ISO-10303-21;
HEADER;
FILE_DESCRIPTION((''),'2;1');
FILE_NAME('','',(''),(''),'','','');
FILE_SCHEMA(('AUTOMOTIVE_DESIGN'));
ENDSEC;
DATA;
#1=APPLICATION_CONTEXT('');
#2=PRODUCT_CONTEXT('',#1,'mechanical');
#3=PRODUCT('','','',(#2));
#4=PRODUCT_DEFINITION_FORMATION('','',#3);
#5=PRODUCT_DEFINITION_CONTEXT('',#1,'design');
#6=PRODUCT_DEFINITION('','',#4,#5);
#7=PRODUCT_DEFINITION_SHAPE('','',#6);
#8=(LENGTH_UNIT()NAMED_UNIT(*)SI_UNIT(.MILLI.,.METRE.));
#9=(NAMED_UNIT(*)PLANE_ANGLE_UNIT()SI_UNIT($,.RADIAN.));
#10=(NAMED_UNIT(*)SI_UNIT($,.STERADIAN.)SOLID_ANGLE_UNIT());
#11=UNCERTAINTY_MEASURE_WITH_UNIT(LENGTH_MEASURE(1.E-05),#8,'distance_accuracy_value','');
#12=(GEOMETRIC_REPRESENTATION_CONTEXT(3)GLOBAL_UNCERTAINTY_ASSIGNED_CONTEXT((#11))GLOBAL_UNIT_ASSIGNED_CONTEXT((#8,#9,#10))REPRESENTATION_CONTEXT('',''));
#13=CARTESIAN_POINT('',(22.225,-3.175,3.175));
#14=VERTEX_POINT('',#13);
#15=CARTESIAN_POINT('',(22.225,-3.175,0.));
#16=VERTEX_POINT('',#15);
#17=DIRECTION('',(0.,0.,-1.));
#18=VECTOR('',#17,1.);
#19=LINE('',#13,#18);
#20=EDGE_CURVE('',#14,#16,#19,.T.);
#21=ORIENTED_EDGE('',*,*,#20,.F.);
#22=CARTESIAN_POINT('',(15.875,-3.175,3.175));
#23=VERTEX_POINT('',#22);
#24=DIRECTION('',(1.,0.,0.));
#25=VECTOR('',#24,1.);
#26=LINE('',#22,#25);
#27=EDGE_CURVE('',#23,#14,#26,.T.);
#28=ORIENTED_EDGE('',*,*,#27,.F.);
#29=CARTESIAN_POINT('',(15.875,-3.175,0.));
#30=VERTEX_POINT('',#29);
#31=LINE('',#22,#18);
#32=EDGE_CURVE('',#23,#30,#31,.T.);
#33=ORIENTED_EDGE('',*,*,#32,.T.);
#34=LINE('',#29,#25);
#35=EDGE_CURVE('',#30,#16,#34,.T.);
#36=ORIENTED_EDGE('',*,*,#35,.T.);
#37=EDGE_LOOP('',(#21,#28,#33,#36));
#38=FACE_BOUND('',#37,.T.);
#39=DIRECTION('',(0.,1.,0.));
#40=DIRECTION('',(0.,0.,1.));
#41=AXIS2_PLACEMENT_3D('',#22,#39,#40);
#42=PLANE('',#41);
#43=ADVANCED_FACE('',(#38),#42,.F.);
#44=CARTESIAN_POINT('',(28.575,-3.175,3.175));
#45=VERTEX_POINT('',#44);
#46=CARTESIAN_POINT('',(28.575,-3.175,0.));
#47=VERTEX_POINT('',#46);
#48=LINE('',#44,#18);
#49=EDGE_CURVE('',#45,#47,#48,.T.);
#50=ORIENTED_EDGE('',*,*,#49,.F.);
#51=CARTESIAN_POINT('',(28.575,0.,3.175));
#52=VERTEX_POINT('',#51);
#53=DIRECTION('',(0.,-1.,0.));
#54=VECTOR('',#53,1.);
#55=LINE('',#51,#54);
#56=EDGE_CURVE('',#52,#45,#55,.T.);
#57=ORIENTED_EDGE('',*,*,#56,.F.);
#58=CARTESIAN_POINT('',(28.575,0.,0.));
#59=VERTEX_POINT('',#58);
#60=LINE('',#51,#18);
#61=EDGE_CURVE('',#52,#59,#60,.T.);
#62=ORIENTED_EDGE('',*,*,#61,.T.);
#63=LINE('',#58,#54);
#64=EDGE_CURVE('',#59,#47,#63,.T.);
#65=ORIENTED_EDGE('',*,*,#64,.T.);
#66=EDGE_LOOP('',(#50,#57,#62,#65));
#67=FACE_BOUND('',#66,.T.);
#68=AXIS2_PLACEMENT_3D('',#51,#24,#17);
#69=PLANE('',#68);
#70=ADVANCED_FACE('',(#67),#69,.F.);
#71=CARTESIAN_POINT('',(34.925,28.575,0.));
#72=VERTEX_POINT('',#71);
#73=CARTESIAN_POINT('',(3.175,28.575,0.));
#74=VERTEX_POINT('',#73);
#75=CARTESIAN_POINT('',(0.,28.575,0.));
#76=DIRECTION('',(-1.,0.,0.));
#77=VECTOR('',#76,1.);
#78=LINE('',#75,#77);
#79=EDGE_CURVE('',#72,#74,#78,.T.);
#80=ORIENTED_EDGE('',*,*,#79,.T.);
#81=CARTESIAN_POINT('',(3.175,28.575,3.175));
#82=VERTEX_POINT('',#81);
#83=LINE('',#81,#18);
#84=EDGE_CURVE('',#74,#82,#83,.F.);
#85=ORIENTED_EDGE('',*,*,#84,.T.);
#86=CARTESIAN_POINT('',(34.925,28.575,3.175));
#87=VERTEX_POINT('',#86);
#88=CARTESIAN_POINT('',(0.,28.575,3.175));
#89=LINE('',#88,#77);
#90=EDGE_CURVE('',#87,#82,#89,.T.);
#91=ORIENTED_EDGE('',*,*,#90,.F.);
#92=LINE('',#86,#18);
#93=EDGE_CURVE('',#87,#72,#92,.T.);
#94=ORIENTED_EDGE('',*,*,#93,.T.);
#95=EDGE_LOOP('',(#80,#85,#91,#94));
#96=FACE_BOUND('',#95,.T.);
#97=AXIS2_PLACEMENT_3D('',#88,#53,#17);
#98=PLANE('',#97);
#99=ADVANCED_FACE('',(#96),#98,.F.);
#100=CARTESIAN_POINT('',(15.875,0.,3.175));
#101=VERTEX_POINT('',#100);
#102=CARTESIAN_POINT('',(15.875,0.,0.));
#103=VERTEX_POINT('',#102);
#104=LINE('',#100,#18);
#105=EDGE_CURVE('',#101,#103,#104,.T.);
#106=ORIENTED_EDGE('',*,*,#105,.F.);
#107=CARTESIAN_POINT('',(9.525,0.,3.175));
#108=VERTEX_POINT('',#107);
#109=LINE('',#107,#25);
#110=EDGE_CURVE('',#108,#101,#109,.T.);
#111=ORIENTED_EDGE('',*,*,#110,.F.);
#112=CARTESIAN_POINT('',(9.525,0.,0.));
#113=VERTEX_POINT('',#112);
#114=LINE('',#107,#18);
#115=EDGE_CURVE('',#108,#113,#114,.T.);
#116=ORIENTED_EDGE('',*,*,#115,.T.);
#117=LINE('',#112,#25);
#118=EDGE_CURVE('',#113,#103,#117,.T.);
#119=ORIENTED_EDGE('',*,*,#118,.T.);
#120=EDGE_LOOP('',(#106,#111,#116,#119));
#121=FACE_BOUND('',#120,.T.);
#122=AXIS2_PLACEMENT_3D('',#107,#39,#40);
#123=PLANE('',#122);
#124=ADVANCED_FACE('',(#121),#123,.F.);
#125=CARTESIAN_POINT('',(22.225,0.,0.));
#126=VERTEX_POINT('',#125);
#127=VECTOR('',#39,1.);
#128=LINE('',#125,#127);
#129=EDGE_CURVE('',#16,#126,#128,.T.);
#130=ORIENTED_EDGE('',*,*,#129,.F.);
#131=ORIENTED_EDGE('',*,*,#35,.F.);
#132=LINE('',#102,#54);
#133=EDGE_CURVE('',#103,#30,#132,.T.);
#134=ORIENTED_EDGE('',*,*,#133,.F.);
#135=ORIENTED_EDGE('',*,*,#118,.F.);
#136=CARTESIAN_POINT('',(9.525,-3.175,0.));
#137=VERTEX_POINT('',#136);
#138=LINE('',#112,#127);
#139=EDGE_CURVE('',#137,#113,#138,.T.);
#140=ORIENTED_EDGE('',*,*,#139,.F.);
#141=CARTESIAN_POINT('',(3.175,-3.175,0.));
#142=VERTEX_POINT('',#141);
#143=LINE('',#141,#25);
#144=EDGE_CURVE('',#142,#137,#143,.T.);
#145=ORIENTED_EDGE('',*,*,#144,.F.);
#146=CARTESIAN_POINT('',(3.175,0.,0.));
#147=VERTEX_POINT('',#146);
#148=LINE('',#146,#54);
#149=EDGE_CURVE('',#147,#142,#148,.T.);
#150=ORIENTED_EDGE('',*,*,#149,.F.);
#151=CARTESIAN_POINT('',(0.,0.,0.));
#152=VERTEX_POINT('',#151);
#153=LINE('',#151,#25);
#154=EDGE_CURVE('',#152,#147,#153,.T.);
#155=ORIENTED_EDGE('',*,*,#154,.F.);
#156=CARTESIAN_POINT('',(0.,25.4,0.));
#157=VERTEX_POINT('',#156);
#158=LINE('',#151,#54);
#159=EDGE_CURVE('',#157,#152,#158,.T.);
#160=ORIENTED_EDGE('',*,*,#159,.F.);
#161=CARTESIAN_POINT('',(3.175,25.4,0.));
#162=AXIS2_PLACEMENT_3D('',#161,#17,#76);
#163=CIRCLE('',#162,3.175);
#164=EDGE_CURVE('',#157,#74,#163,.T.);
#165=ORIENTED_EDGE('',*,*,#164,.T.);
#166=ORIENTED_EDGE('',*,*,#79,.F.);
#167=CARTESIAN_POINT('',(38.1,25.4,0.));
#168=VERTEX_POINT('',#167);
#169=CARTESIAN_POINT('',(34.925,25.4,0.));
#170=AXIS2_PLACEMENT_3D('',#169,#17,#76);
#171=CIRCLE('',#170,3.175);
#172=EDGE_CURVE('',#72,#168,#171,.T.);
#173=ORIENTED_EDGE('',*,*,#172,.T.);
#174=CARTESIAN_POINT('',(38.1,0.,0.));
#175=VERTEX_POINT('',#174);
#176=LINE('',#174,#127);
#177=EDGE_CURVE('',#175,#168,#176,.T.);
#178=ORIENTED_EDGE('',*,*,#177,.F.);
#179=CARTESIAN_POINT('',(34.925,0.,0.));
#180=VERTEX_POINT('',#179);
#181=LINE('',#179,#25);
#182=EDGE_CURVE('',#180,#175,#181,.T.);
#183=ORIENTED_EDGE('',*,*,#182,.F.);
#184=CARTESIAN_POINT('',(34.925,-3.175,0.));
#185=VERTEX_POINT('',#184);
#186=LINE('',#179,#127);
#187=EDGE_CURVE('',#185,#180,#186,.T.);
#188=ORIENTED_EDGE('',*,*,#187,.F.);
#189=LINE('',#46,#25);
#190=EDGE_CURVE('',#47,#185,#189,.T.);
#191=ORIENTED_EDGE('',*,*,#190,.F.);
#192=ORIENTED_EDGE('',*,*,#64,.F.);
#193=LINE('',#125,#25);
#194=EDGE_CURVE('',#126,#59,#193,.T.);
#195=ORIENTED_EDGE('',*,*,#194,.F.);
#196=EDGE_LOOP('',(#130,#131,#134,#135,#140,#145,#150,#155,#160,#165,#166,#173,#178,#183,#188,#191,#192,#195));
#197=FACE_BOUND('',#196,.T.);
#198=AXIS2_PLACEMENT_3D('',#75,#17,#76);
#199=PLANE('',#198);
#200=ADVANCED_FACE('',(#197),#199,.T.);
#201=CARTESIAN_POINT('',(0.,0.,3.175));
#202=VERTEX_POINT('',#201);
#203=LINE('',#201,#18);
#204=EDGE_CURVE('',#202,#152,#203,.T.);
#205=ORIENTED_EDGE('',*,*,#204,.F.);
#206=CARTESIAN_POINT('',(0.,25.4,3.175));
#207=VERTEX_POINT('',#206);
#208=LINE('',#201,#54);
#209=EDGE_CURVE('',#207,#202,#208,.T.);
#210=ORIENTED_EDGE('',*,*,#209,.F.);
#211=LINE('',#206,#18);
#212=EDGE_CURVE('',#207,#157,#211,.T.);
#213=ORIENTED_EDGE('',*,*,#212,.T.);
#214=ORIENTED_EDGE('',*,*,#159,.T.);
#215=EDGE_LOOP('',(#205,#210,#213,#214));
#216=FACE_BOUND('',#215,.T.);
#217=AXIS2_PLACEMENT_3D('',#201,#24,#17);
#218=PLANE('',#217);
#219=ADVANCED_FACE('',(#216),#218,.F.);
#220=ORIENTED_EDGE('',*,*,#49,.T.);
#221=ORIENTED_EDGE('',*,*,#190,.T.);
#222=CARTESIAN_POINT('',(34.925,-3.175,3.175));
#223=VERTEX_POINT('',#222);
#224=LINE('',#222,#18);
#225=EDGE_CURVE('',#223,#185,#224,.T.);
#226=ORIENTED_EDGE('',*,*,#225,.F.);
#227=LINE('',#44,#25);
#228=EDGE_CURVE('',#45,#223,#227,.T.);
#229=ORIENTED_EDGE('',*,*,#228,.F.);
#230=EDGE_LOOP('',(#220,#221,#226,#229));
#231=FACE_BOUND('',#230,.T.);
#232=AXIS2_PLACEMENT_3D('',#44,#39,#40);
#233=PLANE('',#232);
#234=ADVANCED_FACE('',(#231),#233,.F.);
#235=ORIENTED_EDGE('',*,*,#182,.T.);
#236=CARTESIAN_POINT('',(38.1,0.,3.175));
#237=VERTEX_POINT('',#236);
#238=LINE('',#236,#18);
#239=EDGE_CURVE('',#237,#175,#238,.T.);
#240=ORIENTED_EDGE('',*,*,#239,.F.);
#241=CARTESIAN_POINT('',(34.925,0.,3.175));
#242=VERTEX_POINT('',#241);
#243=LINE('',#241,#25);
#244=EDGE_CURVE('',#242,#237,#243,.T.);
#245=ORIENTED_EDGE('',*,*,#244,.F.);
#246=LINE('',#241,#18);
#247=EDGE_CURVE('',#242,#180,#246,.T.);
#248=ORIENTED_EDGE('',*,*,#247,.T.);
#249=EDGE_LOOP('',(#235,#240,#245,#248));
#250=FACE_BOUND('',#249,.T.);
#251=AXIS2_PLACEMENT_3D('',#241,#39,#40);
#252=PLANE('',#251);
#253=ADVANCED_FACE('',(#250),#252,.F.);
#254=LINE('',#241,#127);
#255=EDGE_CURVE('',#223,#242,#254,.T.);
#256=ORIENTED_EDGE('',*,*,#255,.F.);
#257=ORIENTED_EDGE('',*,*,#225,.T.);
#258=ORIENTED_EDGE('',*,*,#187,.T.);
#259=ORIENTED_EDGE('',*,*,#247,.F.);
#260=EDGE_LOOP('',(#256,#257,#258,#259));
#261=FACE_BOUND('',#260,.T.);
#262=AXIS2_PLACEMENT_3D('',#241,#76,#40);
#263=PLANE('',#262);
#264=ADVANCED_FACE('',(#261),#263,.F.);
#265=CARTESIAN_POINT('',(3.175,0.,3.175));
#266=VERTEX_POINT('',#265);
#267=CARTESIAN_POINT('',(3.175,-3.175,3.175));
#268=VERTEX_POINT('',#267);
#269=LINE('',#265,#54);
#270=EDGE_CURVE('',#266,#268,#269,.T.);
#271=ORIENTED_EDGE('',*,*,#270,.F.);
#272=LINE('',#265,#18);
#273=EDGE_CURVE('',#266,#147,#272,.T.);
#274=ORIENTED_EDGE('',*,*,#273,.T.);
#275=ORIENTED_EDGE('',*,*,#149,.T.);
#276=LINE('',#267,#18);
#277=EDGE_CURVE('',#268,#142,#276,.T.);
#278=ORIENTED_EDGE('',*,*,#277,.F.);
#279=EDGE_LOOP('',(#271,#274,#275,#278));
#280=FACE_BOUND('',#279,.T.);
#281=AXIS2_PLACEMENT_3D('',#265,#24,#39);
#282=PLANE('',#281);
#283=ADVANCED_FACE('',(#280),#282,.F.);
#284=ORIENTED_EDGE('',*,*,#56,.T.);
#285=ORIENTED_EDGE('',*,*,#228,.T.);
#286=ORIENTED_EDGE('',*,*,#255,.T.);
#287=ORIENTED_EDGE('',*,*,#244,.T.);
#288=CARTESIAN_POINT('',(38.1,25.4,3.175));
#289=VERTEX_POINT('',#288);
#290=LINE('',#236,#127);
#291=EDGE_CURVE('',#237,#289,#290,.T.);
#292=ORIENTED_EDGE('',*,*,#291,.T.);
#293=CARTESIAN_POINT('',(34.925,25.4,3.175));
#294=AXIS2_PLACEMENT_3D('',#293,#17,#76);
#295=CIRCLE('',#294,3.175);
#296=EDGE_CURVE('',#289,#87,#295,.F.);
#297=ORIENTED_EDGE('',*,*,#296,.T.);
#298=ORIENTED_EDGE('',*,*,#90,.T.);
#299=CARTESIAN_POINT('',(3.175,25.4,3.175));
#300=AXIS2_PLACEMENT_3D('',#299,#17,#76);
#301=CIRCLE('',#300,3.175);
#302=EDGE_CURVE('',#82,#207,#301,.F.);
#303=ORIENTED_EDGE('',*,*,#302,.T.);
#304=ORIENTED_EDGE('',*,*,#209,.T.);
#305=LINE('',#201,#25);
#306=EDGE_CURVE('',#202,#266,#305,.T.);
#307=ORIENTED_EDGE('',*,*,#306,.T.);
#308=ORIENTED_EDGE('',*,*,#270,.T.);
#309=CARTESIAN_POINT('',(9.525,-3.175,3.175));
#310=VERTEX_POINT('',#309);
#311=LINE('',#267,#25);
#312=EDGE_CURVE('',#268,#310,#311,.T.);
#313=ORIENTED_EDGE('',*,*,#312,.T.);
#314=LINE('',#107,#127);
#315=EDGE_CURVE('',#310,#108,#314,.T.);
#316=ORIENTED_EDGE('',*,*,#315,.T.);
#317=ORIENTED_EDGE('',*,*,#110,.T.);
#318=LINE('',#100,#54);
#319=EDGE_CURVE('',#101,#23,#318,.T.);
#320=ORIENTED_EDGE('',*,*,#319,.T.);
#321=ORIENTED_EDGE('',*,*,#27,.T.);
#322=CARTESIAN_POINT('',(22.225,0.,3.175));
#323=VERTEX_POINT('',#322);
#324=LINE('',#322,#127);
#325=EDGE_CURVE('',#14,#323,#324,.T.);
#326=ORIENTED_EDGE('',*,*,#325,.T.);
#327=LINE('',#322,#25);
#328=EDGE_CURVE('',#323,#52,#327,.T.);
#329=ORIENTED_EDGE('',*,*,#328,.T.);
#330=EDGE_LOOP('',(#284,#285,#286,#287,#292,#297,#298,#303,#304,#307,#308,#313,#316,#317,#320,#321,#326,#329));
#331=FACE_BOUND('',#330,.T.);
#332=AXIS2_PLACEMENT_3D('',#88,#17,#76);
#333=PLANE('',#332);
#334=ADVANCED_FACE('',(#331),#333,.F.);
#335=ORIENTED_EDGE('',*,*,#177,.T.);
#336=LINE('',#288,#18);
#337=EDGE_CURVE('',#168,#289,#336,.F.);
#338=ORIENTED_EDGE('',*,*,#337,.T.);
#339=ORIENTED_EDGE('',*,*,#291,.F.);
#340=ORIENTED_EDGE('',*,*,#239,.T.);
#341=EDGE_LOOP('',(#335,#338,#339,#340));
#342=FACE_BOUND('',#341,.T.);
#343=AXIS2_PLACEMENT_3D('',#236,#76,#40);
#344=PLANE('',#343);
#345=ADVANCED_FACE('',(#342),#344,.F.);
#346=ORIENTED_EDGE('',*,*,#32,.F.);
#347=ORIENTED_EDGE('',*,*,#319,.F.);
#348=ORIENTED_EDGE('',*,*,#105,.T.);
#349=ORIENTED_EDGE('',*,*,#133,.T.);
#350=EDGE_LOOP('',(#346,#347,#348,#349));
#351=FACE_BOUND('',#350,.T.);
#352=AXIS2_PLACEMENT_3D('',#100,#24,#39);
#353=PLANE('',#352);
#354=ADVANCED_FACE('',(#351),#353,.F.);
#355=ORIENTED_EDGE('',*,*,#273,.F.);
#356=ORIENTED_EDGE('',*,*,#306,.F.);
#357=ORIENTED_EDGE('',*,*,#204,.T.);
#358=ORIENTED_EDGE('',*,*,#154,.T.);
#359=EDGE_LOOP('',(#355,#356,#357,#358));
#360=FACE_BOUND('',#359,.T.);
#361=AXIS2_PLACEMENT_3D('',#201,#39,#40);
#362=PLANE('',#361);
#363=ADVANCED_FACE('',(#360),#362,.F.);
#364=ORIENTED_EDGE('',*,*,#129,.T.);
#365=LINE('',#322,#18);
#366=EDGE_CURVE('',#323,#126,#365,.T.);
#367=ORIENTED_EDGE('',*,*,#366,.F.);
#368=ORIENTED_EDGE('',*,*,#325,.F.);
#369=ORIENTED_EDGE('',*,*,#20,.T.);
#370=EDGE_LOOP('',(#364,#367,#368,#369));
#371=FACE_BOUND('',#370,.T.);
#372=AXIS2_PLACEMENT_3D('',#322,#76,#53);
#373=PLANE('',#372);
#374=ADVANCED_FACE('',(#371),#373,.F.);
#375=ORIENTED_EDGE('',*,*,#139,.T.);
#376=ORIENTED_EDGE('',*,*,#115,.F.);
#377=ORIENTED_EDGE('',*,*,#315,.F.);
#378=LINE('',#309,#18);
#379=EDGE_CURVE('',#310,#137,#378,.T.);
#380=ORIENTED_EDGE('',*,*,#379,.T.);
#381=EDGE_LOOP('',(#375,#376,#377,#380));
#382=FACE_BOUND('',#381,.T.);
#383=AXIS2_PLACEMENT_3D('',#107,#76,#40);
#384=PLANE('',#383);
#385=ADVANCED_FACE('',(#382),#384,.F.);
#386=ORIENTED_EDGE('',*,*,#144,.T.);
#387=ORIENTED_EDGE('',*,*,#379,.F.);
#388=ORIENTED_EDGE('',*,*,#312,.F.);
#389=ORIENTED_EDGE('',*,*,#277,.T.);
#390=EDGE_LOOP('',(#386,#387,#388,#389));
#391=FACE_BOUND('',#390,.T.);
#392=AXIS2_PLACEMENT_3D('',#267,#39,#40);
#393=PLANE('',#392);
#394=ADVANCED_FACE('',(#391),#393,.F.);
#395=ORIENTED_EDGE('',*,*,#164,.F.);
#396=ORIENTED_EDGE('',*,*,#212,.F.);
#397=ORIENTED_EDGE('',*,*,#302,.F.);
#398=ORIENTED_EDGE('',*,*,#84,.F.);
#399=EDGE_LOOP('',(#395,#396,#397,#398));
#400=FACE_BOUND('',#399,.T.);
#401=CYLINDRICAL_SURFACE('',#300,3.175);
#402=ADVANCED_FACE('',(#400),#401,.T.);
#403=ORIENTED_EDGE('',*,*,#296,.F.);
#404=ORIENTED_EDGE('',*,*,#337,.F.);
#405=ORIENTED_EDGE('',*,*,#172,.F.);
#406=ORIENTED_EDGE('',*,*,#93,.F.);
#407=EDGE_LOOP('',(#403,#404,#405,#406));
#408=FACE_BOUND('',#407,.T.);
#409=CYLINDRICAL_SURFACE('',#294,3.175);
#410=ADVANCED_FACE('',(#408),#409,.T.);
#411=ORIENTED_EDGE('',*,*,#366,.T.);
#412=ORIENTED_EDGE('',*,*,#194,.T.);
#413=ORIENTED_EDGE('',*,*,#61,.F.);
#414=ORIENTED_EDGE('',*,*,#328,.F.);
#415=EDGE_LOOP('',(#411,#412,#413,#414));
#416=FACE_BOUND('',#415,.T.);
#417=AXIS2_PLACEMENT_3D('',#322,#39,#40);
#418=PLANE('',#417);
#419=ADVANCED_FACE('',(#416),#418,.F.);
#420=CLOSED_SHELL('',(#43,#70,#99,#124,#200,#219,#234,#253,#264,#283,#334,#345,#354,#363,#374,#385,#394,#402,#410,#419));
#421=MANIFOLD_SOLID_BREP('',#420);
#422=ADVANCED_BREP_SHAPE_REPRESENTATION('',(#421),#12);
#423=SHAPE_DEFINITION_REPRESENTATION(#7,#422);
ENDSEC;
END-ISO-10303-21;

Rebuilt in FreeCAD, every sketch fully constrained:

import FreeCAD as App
import Part
import Sketcher

V = App.Vector
Q = App.Units.Quantity


def edges_at(feature, points):
    """Names of the edges that pass closest to the given points."""
    edges = feature.Shape.Edges
    near = lambda p: min(range(len(edges)), key=lambda i: edges[i].distToShape(Part.Vertex(*p))[0])
    return sorted({f"Edge{near(p) + 1}" for p in points})


def add_polygon(sketch, points):
    """Adds a closed chain of lines whose ends are joined by coincident constraints."""
    first, n = sketch.GeometryCount, len(points)
    for a, b in zip(points, points[1:] + points[:1]):
        sketch.addGeometry(Part.LineSegment(App.Vector(*a, 0), App.Vector(*b, 0)), False)
    for i in range(n):
        sketch.addConstraint(Sketcher.Constraint("Coincident", first + i, 2, first + (i + 1) % n, 1))

doc = App.newDocument("Part")
body = doc.addObject("PartDesign::Body", "Body")

# Sketch on XY plane
sketch1 = body.newObject("Sketcher::SketchObject", "Sketch")
sketch1.AttachmentSupport = (doc.getObject("XY_Plane"), [""])
sketch1.MapMode = "FlatFace"
add_polygon(sketch1, [(9.5, 0), (15.9, 0), (15.9, -3.2), (22.2, -3.2), (22.2, 0), (28.6, 0), (28.6, -3.2), (34.9, -3.2), (34.9, 0), (38.1, 0), (38.1, 28.6), (0, 28.6), (0, 0), (3.2, 0), (3.2, -3.2), (9.5, -3.2)])  # lines 0-15
sketch1.addConstraint(Sketcher.Constraint("Horizontal", 0))
sketch1.addConstraint(Sketcher.Constraint("Vertical", 1))
sketch1.addConstraint(Sketcher.Constraint("Horizontal", 2))
sketch1.addConstraint(Sketcher.Constraint("Vertical", 3))
sketch1.addConstraint(Sketcher.Constraint("Horizontal", 4))
sketch1.addConstraint(Sketcher.Constraint("Vertical", 5))
sketch1.addConstraint(Sketcher.Constraint("Horizontal", 6))
sketch1.addConstraint(Sketcher.Constraint("Vertical", 7))
sketch1.addConstraint(Sketcher.Constraint("Horizontal", 8))
sketch1.addConstraint(Sketcher.Constraint("Vertical", 9))
sketch1.addConstraint(Sketcher.Constraint("Horizontal", 10))
sketch1.addConstraint(Sketcher.Constraint("Vertical", 11))
sketch1.addConstraint(Sketcher.Constraint("Horizontal", 12))
sketch1.addConstraint(Sketcher.Constraint("Vertical", 13))
sketch1.addConstraint(Sketcher.Constraint("Horizontal", 14))
sketch1.addConstraint(Sketcher.Constraint("Vertical", 15))
sketch1.addConstraint(Sketcher.Constraint("Coincident", 11, 2, -1, 1))
sketch1.addConstraint(Sketcher.Constraint("PointOnObject", 0, 2, -1))
sketch1.addConstraint(Sketcher.Constraint("PointOnObject", 3, 2, -1))
sketch1.addConstraint(Sketcher.Constraint("PointOnObject", 7, 2, -1))
sketch1.addConstraint(Sketcher.Constraint("Horizontal", 2, 2, 5, 2))
sketch1.addConstraint(Sketcher.Constraint("Horizontal", 6, 2, 13, 2))
sketch1.addConstraint(Sketcher.Constraint("Equal", 0, 2))
sketch1.addConstraint(Sketcher.Constraint("Equal", 2, 4))
sketch1.addConstraint(Sketcher.Constraint("Equal", 4, 6))
sketch1.addConstraint(Sketcher.Constraint("Equal", 8, 12))
sketch1.addConstraint(Sketcher.Constraint("Equal", 6, 14))
sketch1.addConstraint(Sketcher.Constraint("Equal", 12, 1))
sketch1.addConstraint(Sketcher.Constraint("DistanceX", 10, 2, 10, 1, Q("1.5 in")))
sketch1.addConstraint(Sketcher.Constraint("DistanceX", 0, 1, 0, 2, Q("0.25 in")))
sketch1.addConstraint(Sketcher.Constraint("DistanceY", 9, 1, 9, 2, Q("1.125 in")))
pad1 = body.newObject("PartDesign::Pad", "Pad")
pad1.Profile = sketch1
pad1.Length = Q("0.125 in")
doc.recompute()

fillet = body.newObject("PartDesign::Fillet", "Fillet")
fillet.Base = (pad1, edges_at(pad1, [(0, 28.575, 1.587), (38.1, 28.575, 1.587)]))
fillet.Radius = Q("0.125 in")

doc.recompute()
